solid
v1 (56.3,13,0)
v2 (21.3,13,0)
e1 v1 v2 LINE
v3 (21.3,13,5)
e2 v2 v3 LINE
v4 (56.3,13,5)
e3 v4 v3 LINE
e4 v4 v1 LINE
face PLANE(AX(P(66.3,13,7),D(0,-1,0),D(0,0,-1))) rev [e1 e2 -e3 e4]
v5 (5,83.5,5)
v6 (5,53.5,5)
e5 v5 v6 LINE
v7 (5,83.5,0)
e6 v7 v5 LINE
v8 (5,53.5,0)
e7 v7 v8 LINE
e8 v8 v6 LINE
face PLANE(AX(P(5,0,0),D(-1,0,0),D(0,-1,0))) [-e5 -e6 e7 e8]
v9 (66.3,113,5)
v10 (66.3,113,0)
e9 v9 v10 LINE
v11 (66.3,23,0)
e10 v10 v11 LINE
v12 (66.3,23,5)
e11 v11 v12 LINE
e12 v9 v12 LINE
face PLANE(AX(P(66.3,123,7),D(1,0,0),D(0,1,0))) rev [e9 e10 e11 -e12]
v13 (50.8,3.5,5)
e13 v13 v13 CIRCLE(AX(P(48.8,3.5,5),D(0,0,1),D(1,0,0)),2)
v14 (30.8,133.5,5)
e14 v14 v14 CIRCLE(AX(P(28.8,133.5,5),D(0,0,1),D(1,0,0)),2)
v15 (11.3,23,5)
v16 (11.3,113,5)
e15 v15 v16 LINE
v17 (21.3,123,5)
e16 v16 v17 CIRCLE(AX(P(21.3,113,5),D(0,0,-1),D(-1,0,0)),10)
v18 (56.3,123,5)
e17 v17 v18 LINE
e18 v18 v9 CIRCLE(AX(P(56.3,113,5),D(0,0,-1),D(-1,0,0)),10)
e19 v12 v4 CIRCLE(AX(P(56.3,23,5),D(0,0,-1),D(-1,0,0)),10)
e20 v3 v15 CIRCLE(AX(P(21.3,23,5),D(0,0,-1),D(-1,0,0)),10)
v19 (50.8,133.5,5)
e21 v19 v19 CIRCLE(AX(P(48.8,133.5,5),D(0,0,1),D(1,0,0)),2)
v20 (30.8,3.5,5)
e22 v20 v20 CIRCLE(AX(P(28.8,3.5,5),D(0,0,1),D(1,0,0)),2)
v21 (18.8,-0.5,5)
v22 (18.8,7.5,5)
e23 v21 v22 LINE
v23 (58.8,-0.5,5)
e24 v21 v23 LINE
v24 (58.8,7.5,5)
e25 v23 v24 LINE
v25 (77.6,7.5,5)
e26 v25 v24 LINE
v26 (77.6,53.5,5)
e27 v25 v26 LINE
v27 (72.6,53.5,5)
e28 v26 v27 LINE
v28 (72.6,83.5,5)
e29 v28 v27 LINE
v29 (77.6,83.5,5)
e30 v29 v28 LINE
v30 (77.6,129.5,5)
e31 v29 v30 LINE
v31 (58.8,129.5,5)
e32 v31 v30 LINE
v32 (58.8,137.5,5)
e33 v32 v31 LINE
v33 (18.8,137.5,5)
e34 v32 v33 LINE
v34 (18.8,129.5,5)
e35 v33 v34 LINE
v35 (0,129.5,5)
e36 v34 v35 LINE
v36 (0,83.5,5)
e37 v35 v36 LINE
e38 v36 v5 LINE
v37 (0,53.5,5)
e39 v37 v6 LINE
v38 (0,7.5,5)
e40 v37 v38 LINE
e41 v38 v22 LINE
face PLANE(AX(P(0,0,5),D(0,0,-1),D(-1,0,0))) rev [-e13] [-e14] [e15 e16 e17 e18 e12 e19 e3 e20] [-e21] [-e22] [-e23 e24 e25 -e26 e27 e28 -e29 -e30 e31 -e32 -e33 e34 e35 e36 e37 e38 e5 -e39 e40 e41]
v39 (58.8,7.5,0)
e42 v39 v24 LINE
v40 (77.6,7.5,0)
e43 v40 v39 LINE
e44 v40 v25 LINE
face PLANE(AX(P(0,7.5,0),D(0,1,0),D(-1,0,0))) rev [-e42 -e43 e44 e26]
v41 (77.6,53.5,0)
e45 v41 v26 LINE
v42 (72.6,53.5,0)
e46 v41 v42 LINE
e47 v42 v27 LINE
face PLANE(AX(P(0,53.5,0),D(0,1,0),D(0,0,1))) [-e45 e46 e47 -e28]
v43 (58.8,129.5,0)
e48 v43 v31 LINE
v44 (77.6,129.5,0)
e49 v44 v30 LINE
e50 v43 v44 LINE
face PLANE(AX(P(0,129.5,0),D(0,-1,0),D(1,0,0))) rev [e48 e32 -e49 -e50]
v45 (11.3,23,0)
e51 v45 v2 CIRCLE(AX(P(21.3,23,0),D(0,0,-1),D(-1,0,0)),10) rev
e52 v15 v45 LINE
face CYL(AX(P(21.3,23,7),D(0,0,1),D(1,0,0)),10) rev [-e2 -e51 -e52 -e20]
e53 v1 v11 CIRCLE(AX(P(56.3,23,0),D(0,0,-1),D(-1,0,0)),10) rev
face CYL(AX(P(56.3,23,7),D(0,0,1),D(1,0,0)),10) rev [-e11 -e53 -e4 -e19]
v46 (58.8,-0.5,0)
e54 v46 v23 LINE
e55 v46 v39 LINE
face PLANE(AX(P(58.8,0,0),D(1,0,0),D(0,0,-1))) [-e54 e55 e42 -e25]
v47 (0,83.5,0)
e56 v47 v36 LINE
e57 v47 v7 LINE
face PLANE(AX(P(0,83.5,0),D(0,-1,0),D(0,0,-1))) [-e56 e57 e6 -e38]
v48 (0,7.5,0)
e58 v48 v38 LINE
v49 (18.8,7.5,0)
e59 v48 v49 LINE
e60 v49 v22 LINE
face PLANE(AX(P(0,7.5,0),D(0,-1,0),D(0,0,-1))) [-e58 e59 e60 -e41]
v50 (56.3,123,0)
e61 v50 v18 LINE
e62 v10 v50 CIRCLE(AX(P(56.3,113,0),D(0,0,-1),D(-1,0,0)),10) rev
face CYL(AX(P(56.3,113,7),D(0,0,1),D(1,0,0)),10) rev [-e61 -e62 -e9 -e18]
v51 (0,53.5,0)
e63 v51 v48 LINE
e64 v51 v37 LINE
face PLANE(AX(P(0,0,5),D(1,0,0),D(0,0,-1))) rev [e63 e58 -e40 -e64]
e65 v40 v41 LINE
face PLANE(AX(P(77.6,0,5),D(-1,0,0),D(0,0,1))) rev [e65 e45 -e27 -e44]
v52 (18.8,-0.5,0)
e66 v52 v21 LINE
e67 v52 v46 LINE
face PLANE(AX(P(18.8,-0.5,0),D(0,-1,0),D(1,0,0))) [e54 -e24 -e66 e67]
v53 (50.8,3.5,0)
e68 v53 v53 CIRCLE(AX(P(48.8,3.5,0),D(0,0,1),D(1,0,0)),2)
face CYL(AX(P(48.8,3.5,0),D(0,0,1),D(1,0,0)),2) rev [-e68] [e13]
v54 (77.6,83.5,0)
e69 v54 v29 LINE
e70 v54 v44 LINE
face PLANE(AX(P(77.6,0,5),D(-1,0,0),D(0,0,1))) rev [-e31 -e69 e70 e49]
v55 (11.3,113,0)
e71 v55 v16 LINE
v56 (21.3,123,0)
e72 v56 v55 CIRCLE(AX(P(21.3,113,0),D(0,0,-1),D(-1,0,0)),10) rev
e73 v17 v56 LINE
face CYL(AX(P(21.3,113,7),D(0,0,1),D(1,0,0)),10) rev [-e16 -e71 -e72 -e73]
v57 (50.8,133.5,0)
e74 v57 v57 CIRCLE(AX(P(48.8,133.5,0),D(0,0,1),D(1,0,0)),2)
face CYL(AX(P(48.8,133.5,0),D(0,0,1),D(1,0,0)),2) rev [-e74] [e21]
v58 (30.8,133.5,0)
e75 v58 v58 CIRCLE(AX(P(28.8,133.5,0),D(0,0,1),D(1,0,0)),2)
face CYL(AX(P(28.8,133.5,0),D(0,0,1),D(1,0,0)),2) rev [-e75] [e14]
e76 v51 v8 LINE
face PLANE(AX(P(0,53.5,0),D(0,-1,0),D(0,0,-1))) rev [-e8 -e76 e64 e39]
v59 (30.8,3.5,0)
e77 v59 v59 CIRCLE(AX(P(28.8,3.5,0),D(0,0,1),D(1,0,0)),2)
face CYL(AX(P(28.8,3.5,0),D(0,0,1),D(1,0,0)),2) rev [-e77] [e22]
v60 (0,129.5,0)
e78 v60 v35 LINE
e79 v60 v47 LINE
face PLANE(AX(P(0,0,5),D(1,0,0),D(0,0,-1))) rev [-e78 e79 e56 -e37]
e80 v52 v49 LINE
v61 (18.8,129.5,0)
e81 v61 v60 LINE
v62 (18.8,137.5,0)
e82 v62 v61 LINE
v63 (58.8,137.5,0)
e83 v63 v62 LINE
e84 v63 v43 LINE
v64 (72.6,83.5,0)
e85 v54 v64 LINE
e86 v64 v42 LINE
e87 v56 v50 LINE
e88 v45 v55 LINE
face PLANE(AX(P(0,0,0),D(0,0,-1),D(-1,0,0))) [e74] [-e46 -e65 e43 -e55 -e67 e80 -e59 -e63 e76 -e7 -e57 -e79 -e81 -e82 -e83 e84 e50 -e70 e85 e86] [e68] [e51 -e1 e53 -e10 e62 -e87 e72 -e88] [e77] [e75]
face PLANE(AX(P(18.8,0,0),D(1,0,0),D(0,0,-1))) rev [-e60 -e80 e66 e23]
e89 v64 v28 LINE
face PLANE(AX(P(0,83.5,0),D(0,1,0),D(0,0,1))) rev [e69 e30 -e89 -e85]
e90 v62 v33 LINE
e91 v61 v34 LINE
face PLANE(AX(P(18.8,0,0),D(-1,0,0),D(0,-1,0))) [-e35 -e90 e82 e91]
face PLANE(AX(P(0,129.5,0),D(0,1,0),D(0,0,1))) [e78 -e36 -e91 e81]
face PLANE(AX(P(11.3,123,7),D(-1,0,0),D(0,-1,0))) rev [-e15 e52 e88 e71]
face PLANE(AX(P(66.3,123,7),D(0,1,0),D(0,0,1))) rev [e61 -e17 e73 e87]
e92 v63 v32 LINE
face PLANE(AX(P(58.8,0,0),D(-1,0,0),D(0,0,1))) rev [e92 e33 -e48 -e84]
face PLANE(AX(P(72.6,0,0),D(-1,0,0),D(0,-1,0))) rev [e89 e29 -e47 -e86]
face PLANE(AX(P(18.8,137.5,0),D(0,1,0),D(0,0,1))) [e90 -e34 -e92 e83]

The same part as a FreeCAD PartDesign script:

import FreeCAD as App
import Part
import Sketcher

V = App.Vector
Q = App.Units.Quantity


def edges_at(feature, points):
    """Names of the edges that pass closest to the given points."""
    edges = feature.Shape.Edges
    near = lambda p: min(range(len(edges)), key=lambda i: edges[i].distToShape(Part.Vertex(*p))[0])
    return sorted({f"Edge{near(p) + 1}" for p in points})


def add_polygon(sketch, points):
    """Adds a closed chain of lines whose ends are joined by coincident constraints."""
    first, n = sketch.GeometryCount, len(points)
    for a, b in zip(points, points[1:] + points[:1]):
        sketch.addGeometry(Part.LineSegment(App.Vector(*a, 0), App.Vector(*b, 0)), False)
    for i in range(n):
        sketch.addConstraint(Sketcher.Constraint("Coincident", first + i, 2, first + (i + 1) % n, 1))

doc = App.newDocument("Part")
body = doc.addObject("PartDesign::Body", "Body")

# Sketch on XY plane
sketch1 = body.newObject("Sketcher::SketchObject", "Sketch")
sketch1.AttachmentSupport = (doc.getObject("XY_Plane"), [""])
sketch1.MapMode = "FlatFace"
add_polygon(sketch1, [(0, 137), (0, 0), (77.6, 0), (77.6, 137)])  # lines 0-3
sketch1.addConstraint([
    Sketcher.Constraint("Vertical", 0),
    Sketcher.Constraint("Horizontal", 1),
    Sketcher.Constraint("Vertical", 2),
    Sketcher.Constraint("Horizontal", 3),
    Sketcher.Constraint("Coincident", 0, 2, -1, 1),
    Sketcher.Constraint("DistanceY", 0, 2, 0, 1, Q("137 mm")),
    Sketcher.Constraint("DistanceX", 1, 1, 1, 2, Q("77.6 mm")),
])
pad1 = body.newObject("PartDesign::Pad", "Pad")
pad1.Profile = sketch1
pad1.Length = 5

# Sketch on XY plane
sketch2 = body.newObject("Sketcher::SketchObject", "Sketch001")
sketch2.AttachmentSupport = (doc.getObject("XY_Plane"), [""])
sketch2.MapMode = "FlatFace"
sketch2.AttachmentOffset = App.Placement(V(0, 0, 5), App.Rotation())
add_polygon(sketch2, [(0, 137), (0, 129.5), (18.8, 129.5), (18.8, 137)])  # lines 0-3
add_polygon(sketch2, [(0, 7.5), (0, 0), (18.8, 0), (18.8, 7.5)])  # lines 4-7
add_polygon(sketch2, [(58.8, 7.5), (58.8, 0), (77.6, 0), (77.6, 7.5)])  # lines 8-11
add_polygon(sketch2, [(58.8, 137), (58.8, 129.5), (77.6, 129.5), (77.6, 137)])  # lines 12-15
add_polygon(sketch2, [(72.6, 83.5), (72.6, 53.5), (77.6, 53.5), (77.6, 83.5)])  # lines 16-19
add_polygon(sketch2, [(0, 83.5), (0, 53.5), (5, 53.5), (5, 83.5)])  # lines 20-23
sketch2.addConstraint([
    Sketcher.Constraint("Vertical", 0),
    Sketcher.Constraint("Horizontal", 1),
    Sketcher.Constraint("Vertical", 2),
    Sketcher.Constraint("Horizontal", 3),
    Sketcher.Constraint("Vertical", 4),
    Sketcher.Constraint("Horizontal", 5),
    Sketcher.Constraint("Vertical", 6),
    Sketcher.Constraint("Horizontal", 7),
    Sketcher.Constraint("Vertical", 8),
    Sketcher.Constraint("Horizontal", 9),
    Sketcher.Constraint("Vertical", 10),
    Sketcher.Constraint("Horizontal", 11),
    Sketcher.Constraint("Vertical", 12),
    Sketcher.Constraint("Horizontal", 13),
    Sketcher.Constraint("Vertical", 14),
    Sketcher.Constraint("Horizontal", 15),
    Sketcher.Constraint("Vertical", 16),
    Sketcher.Constraint("Horizontal", 17),
    Sketcher.Constraint("Vertical", 18),
    Sketcher.Constraint("Horizontal", 19),
    Sketcher.Constraint("Vertical", 20),
    Sketcher.Constraint("Horizontal", 21),
    Sketcher.Constraint("Vertical", 22),
    Sketcher.Constraint("Horizontal", 23),
    Sketcher.Constraint("Coincident", 4, 2, -1, 1),
    Sketcher.Constraint("PointOnObject", 0, 2, -2),
    Sketcher.Constraint("PointOnObject", 8, 2, -1),
    Sketcher.Constraint("PointOnObject", 20, 2, -2),
    Sketcher.Constraint("Horizontal", 7, 2, 10, 2),
    Sketcher.Constraint("Horizontal", 1, 2, 12, 2),
    Sketcher.Constraint("Horizontal", 3, 2, 14, 2),
    Sketcher.Constraint("Horizontal", 17, 2, 20, 2),
    Sketcher.Constraint("Horizontal", 19, 2, 22, 2),
    Sketcher.Constraint("Vertical", 2, 2, 5, 2),
    Sketcher.Constraint("Vertical", 11, 2, 12, 2),
    Sketcher.Constraint("Vertical", 10, 2, 13, 2),
    Sketcher.Constraint("Vertical", 14, 2, 17, 2),
    Sketcher.Constraint("Equal", 7, 9),
    Sketcher.Constraint("Equal", 19, 21),
    Sketcher.Constraint("Equal", 2, 4),
    Sketcher.Constraint("DistanceX", 17, 1, 17, 2, Q("5 mm")),
    Sketcher.Constraint("DistanceY", 16, 2, 16, 1, Q("30 mm")),
    Sketcher.Constraint("DistanceX", 1, 1, 1, 2, Q("18.8 mm")),
    Sketcher.Constraint("DistanceY", 0, 2, 0, 1, Q("7.5 mm")),
    Sketcher.Constraint("DistanceY", -1, 1, 2, 2, Q("137 mm")),
    Sketcher.Constraint("DistanceX", 5, 2, 8, 2, Q("40 mm")),
    Sketcher.Constraint("DistanceY", 10, 2, 16, 2, Q("46 mm")),
])
pocket1 = body.newObject("PartDesign::Pocket", "Pocket")
pocket1.Profile = sketch2
pocket1.Length = 5

# Sketch on XY plane
sketch3 = body.newObject("Sketcher::SketchObject", "Sketch002")
sketch3.AttachmentSupport = (doc.getObject("XY_Plane"), [""])
sketch3.MapMode = "FlatFace"
sketch3.AttachmentOffset = App.Placement(V(0, 0, 5), App.Rotation())
sketch3.addGeometry([
    Part.Circle(V(28.8, 133.5, 0), V(0, 0, 1), 2),
    Part.Circle(V(48.8, 133.5, 0), V(0, 0, 1), 2),
    Part.Circle(V(28.8, 3.5, 0), V(0, 0, 1), 2),
    Part.Circle(V(48.8, 3.5, 0), V(0, 0, 1), 2),
], False)
sketch3.addConstraint([
    Sketcher.Constraint("Equal", 0, 1),
    Sketcher.Constraint("Equal", 1, 2),
    Sketcher.Constraint("Equal", 2, 3),
    Sketcher.Constraint("Horizontal", 0, 3, 1, 3),
    Sketcher.Constraint("Horizontal", 2, 3, 3, 3),
    Sketcher.Constraint("Vertical", 0, 3, 2, 3),
    Sketcher.Constraint("Vertical", 1, 3, 3, 3),
    Sketcher.Constraint("Diameter", 0, Q("4 mm")),
    Sketcher.Constraint("DistanceX", 0, 3, 1, 3, Q("20 mm")),
    Sketcher.Constraint("DistanceY", 2, 3, 0, 3, Q("130 mm")),
    Sketcher.Constraint("DistanceX", -1, 1, 0, 3, Q("28.8 mm")),
    Sketcher.Constraint("DistanceY", -1, 1, 0, 3, Q("133.5 mm")),
])
pocket2 = body.newObject("PartDesign::Pocket", "Pocket001")
pocket2.Profile = sketch3
pocket2.Length = 5

# Sketch on XY plane
sketch4 = body.newObject("Sketcher::SketchObject", "Sketch003")
sketch4.AttachmentSupport = (doc.getObject("XY_Plane"), [""])
sketch4.MapMode = "FlatFace"
add_polygon(sketch4, [(66.3, 123), (66.3, 13), (11.3, 13), (11.3, 123)])  # lines 0-3
sketch4.addConstraint([
    Sketcher.Constraint("Vertical", 0),
    Sketcher.Constraint("Horizontal", 1),
    Sketcher.Constraint("Vertical", 2),
    Sketcher.Constraint("Horizontal", 3),
    Sketcher.Constraint("DistanceX", 1, 2, 1, 1, Q("55 mm")),
    Sketcher.Constraint("DistanceY", 0, 2, 0, 1, Q("110 mm")),
    Sketcher.Constraint("DistanceY", -1, 1, 0, 2, Q("13 mm")),
    Sketcher.Constraint("DistanceX", -1, 1, 0, 2, Q("66.3 mm")),
])
pocket3 = body.newObject("PartDesign::Pocket", "Pocket002")
pocket3.Profile = sketch4
pocket3.Length = 7
pocket3.Reversed = True
doc.recompute()

fillet = body.newObject("PartDesign::Fillet", "Fillet")
fillet.Base = (pocket3, edges_at(pocket3, [
    (66.3, 13, 2.5),
    (66.3, 123, 2.5),
    (11.3, 123, 2.5),
    (11.3, 13, 2.5),
]))
fillet.Radius = 10

# Sketch on XY plane
sketch5 = body.newObject("Sketcher::SketchObject", "Sketch004")
sketch5.AttachmentSupport = (doc.getObject("XY_Plane"), [""])
sketch5.MapMode = "FlatFace"
sketch5.AttachmentOffset = App.Placement(V(0, 0, 5), App.Rotation())
add_polygon(sketch5, [(18.8, 137.5), (18.8, 137), (58.8, 137), (58.8, 137.5)])  # lines 0-3
add_polygon(sketch5, [(18.8, 0), (18.8, -0.5), (58.8, -0.5), (58.8, 0)])  # lines 4-7
sketch5.addConstraint([
    Sketcher.Constraint("Vertical", 0),
    Sketcher.Constraint("Horizontal", 1),
    Sketcher.Constraint("Vertical", 2),
    Sketcher.Constraint("Horizontal", 3),
    Sketcher.Constraint("Vertical", 4),
    Sketcher.Constraint("Horizontal", 5),
    Sketcher.Constraint("Vertical", 6),
    Sketcher.Constraint("Horizontal", 7),
    Sketcher.Constraint("PointOnObject", 6, 2, -1),
    Sketcher.Constraint("Vertical", 3, 2, 4, 2),
    Sketcher.Constraint("Vertical", 2, 2, 5, 2),
    Sketcher.Constraint("Equal", 2, 4),
    Sketcher.Constraint("DistanceX", 1, 1, 1, 2, Q("40 mm")),
    Sketcher.Constraint("DistanceY", 0, 2, 0, 1, Q("0.5 mm")),
    Sketcher.Constraint("DistanceY", -1, 1, 0, 2, Q("137 mm")),
    Sketcher.Constraint("DistanceX", -1, 1, 0, 2, Q("18.8 mm")),
])
pad2 = body.newObject("PartDesign::Pad", "Pad001")
pad2.Profile = sketch5
pad2.Length = 5
pad2.Reversed = True

doc.recompute()
